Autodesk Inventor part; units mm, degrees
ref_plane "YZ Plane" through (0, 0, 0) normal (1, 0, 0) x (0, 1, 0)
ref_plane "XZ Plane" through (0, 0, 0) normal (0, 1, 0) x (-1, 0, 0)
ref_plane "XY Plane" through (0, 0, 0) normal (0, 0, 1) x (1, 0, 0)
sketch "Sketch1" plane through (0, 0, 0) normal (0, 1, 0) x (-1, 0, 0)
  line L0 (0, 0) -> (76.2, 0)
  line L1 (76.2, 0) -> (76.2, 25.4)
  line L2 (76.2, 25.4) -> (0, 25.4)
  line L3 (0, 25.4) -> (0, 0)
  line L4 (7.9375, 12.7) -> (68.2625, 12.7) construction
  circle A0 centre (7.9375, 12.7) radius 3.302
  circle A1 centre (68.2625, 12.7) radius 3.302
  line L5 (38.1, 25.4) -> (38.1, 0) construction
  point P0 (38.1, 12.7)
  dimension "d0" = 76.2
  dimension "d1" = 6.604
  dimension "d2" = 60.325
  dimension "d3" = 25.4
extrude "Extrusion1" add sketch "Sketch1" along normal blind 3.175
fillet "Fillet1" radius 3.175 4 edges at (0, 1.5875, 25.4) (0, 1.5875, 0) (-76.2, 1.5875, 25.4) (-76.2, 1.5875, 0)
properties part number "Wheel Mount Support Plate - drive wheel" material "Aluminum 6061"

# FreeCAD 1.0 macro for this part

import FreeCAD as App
import Part
import Sketcher

V = App.Vector
Q = App.Units.Quantity


def edges_at(feature, points):
    """Names of the edges that pass closest to the given points."""
    edges = feature.Shape.Edges
    near = lambda p: min(range(len(edges)), key=lambda i: edges[i].distToShape(Part.Vertex(*p))[0])
    return sorted({f"Edge{near(p) + 1}" for p in points})

doc = App.newDocument("Part")
body = doc.addObject("PartDesign::Body", "Body")

sketch1 = doc.addObject("Sketcher::SketchObject", "Sketch")
body.addObject(sketch1)
sketch1.AttachmentSupport = (doc.XZ_Plane, [""])
sketch1.MapMode = "FlatFace"
sketch1.addGeometry(Part.LineSegment(V(0, 25.4, 0), V(0, 0, 0)), False)
sketch1.addGeometry(Part.LineSegment(V(0, 0, 0), V(-76.2, 0, 0)), False)
sketch1.addGeometry(Part.LineSegment(V(-76.2, 0, 0), V(-76.2, 25.4, 0)), False)
sketch1.addGeometry(Part.LineSegment(V(-76.2, 25.4, 0), V(0, 25.4, 0)), False)
sketch1.addGeometry(Part.Circle(V(-7.9, 12.7, 0), V(0, 0, 1), 3.3), False)
sketch1.addGeometry(Part.Circle(V(-68.3, 12.7, 0), V(0, 0, 1), 3.3), False)
sketch1.addConstraint(Sketcher.Constraint("Coincident", 0, 2, 1, 1))
sketch1.addConstraint(Sketcher.Constraint("Coincident", 1, 2, 2, 1))
sketch1.addConstraint(Sketcher.Constraint("Coincident", 2, 2, 3, 1))
sketch1.addConstraint(Sketcher.Constraint("Coincident", 3, 2, 0, 1))
sketch1.addConstraint(Sketcher.Constraint("Vertical", 0))
sketch1.addConstraint(Sketcher.Constraint("Horizontal", 1))
sketch1.addConstraint(Sketcher.Constraint("Vertical", 2))
sketch1.addConstraint(Sketcher.Constraint("Horizontal", 3))
sketch1.addConstraint(Sketcher.Constraint("Coincident", 0, 2, -1, 1))
sketch1.addConstraint(Sketcher.Constraint("Equal", 4, 5))
sketch1.addConstraint(Sketcher.Constraint("Horizontal", 4, 3, 5, 3))
sketch1.addConstraint(Sketcher.Constraint("Diameter", 4, Q("0.26 in")))
sketch1.addConstraint(Sketcher.Constraint("DistanceX", 1, 2, 1, 1, Q("3 in")))
sketch1.addConstraint(Sketcher.Constraint("DistanceY", 0, 2, 0, 1, Q("1 in")))
sketch1.addConstraint(Sketcher.Constraint("DistanceX", 5, 3, 4, 3, Q("2.375 in")))
sketch1.addConstraint(Sketcher.Constraint("DistanceY", -1, 1, 4, 3, Q("0.5 in")))
sketch1.addConstraint(Sketcher.Constraint("DistanceX", 4, 3, -1, 1, Q("0.3125 in")))
pad1 = doc.addObject("PartDesign::Pad", "Pad")
body.addObject(pad1)
pad1.Profile = sketch1
pad1.Length = Q("0.125 in")
pad1.Reversed = True
doc.recompute()

fillet = doc.addObject("PartDesign::Fillet", "Fillet")
body.addObject(fillet)
fillet.Base = (pad1, edges_at(pad1, [
    (0, 1.587, 25.4),
    (0, 1.587, 0),
    (-76.2, 1.587, 25.4),
    (-76.2, 1.587, 0),
]))
fillet.Radius = Q("0.125 in")

doc.recompute()
